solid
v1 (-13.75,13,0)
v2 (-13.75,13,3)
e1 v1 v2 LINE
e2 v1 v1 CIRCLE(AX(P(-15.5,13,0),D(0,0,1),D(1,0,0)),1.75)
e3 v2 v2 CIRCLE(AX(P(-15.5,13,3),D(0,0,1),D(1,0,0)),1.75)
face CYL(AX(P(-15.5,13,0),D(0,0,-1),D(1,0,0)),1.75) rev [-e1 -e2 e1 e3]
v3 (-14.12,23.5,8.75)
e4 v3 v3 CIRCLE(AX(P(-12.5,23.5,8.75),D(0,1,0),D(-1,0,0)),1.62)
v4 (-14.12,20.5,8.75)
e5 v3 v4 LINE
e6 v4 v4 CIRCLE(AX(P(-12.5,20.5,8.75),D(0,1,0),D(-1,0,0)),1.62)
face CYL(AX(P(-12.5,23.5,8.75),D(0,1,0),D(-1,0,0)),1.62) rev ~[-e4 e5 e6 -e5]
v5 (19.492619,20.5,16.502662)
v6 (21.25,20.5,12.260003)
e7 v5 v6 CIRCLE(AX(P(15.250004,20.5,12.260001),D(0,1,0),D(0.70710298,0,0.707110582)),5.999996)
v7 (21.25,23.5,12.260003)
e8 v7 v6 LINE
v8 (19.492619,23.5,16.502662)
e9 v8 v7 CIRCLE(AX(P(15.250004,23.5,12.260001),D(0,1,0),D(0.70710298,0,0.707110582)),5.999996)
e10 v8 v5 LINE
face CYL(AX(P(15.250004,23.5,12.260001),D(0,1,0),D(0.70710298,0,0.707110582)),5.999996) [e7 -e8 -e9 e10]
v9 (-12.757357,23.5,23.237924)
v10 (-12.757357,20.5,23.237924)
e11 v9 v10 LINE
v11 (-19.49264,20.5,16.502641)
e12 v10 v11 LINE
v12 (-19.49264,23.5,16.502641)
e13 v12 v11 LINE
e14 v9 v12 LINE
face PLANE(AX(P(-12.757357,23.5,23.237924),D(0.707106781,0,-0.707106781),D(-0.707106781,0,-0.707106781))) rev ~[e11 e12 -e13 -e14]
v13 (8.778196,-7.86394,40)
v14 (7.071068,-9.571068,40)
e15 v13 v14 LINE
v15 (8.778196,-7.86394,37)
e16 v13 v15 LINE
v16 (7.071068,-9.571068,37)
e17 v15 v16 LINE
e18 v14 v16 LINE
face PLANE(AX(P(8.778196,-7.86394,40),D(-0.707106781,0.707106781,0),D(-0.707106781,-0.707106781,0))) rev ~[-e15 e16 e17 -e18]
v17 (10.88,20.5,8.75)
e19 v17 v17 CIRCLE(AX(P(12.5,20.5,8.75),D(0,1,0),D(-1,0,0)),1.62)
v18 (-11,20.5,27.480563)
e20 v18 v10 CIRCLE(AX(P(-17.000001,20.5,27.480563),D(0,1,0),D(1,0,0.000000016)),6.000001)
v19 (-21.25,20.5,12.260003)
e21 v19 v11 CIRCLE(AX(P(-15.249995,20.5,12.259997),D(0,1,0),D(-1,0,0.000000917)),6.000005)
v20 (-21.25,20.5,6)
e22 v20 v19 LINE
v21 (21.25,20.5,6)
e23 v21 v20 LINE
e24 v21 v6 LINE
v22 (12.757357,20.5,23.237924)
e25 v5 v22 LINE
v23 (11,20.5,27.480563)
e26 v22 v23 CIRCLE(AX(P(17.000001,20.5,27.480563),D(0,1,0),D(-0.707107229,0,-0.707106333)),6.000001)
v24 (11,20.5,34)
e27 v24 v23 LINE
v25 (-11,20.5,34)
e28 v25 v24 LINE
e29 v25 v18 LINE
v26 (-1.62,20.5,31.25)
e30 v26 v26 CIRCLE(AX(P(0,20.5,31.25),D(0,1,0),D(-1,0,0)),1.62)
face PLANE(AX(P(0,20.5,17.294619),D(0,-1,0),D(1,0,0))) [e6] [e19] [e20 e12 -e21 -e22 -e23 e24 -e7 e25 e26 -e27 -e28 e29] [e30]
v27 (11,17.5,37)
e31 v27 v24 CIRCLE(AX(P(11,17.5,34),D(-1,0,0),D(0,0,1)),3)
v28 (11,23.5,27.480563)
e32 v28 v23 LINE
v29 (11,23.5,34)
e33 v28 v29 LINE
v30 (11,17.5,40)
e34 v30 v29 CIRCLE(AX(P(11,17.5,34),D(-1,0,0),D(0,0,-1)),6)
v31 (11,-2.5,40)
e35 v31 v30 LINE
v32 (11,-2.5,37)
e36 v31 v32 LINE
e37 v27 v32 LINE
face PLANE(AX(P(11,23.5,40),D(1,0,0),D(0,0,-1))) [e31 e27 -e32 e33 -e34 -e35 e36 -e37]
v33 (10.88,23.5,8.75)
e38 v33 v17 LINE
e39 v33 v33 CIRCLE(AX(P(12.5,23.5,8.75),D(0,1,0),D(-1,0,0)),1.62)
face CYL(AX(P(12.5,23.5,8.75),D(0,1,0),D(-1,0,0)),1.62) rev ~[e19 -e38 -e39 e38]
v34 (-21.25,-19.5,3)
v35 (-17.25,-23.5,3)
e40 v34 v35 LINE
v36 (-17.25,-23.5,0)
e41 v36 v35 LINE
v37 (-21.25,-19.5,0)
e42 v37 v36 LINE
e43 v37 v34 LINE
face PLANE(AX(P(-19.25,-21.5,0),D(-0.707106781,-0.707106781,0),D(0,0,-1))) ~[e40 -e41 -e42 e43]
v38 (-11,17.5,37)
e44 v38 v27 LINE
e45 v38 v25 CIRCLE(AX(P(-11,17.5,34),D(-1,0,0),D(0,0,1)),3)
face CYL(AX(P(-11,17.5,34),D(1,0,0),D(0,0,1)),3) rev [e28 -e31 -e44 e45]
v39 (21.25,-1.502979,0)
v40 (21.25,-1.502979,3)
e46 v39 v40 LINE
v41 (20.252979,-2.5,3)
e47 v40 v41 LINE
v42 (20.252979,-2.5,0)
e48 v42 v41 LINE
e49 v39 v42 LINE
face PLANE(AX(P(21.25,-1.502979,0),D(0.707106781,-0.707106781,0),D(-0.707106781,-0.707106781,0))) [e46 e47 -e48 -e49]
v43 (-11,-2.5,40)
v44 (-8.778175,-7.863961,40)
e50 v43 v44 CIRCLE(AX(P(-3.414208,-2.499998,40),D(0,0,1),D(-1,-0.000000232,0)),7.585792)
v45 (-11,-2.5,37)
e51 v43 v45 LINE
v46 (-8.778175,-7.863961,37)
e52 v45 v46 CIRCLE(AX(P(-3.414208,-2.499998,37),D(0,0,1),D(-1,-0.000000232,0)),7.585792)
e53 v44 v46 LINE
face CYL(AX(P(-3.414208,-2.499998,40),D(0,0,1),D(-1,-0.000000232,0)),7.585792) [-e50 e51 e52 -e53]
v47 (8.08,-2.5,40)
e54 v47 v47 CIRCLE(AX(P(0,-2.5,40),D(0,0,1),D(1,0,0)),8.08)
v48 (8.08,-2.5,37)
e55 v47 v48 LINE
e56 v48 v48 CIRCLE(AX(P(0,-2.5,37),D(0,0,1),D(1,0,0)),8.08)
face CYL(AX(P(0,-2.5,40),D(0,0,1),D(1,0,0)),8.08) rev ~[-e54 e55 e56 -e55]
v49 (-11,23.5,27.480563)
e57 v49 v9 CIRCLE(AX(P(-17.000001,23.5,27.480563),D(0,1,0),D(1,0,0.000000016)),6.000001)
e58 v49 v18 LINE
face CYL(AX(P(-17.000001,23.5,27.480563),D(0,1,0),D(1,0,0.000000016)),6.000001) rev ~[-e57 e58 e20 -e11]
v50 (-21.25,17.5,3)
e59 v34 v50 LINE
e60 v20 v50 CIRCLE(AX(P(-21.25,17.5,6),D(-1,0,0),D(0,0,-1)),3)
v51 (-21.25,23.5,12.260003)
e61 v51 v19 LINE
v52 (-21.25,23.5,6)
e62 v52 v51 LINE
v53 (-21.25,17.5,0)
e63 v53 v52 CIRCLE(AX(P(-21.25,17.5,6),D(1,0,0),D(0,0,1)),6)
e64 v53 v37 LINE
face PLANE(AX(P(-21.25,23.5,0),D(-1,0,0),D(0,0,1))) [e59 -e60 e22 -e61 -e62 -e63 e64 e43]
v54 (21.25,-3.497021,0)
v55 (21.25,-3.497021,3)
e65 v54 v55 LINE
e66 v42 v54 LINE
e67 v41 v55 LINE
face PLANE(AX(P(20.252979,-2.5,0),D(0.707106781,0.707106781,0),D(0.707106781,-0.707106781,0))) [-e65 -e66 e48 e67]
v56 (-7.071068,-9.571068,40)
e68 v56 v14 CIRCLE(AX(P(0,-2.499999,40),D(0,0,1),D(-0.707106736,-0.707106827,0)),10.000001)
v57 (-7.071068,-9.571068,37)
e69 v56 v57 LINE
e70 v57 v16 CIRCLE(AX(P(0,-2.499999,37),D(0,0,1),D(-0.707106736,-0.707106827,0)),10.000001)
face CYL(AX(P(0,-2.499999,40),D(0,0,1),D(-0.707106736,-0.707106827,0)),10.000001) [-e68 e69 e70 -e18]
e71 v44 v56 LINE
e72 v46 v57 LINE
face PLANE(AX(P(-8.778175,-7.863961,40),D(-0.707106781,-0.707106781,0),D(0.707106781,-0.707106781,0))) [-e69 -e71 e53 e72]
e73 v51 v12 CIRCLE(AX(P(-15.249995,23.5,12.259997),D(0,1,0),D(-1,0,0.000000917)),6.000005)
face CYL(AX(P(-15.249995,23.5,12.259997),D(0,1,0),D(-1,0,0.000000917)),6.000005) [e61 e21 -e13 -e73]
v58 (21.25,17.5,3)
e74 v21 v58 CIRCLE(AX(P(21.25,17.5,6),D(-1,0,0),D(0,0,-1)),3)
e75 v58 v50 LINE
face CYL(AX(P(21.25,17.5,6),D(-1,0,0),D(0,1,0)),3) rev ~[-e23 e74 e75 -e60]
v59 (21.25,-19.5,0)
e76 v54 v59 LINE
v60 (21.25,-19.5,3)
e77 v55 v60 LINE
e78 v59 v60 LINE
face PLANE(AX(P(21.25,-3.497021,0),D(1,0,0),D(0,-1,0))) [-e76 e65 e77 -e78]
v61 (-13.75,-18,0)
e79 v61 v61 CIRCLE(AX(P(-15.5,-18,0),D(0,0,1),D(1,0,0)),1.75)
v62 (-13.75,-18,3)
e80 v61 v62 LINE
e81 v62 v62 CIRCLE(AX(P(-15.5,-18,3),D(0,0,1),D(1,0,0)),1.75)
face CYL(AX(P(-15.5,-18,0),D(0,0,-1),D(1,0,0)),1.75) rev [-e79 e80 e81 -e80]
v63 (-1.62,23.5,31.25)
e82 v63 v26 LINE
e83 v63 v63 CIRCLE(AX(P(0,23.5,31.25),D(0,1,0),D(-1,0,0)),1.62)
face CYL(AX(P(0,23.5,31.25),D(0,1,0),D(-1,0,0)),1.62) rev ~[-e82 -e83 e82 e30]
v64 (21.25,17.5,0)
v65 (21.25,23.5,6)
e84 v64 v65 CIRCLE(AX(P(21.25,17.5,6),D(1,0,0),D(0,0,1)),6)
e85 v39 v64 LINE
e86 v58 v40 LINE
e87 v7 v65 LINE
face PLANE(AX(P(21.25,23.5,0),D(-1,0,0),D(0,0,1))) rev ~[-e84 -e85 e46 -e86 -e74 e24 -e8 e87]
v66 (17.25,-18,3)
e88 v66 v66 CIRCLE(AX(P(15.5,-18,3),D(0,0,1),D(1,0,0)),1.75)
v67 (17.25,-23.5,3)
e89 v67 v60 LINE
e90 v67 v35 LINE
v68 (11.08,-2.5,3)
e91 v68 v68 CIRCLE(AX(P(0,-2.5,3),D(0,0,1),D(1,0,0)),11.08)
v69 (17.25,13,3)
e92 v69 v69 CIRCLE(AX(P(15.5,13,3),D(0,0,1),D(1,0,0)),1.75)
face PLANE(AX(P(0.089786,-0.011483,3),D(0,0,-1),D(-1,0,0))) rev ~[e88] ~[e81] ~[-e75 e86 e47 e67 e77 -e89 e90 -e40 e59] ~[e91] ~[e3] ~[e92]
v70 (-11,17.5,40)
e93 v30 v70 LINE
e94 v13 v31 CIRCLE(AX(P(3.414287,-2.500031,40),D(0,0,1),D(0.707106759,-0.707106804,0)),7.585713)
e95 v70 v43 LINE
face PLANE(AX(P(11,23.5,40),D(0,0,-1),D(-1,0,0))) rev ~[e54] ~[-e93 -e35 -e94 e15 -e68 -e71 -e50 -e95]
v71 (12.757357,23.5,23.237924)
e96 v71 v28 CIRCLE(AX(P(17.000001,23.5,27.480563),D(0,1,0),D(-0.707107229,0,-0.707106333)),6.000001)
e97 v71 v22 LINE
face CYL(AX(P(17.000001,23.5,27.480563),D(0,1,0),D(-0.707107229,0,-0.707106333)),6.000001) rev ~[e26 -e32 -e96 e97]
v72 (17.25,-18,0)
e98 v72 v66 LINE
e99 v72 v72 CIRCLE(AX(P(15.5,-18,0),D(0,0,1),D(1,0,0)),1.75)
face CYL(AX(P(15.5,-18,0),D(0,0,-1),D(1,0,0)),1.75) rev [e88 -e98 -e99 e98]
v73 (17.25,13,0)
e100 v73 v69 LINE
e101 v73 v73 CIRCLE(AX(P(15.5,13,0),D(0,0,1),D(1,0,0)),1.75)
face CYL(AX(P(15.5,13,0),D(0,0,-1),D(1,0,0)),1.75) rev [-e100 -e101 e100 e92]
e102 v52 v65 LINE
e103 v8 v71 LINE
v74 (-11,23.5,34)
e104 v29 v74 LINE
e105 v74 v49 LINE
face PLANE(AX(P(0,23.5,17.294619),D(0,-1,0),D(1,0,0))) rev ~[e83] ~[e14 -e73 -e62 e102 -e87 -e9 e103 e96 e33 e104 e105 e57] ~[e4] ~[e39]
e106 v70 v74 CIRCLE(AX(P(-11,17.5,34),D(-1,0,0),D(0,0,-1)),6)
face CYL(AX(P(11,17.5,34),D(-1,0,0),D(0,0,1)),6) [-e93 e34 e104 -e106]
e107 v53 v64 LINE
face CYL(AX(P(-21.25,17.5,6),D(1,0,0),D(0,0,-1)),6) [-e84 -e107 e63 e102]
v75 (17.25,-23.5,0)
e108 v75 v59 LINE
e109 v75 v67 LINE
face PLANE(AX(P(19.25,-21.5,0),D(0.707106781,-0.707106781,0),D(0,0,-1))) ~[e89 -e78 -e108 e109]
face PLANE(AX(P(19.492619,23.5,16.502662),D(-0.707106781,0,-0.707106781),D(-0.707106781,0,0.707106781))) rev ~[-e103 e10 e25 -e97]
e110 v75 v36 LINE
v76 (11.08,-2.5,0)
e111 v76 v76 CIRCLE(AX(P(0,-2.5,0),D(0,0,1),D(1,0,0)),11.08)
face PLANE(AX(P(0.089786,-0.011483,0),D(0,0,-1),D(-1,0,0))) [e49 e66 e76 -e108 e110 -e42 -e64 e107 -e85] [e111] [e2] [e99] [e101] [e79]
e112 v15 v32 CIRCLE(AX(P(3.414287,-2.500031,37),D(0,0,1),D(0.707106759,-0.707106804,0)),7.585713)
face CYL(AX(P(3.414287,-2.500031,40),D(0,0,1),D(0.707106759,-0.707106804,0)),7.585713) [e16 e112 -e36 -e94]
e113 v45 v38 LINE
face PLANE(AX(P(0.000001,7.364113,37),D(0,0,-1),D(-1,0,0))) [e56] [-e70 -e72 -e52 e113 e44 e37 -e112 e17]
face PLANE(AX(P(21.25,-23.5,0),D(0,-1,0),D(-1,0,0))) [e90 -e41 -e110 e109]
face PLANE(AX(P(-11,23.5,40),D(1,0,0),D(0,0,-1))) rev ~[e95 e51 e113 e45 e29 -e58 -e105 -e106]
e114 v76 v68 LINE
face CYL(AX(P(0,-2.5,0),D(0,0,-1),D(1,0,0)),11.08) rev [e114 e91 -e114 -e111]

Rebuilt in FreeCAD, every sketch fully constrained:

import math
import FreeCAD as App
import Part
import Sketcher
from FreeCAD import Vector


def edges_at(feature, points):
    """Names of the edges that pass closest to the given points."""
    edges = feature.Shape.Edges
    near = lambda p: min(range(len(edges)), key=lambda i: edges[i].distToShape(Part.Vertex(*p))[0])
    return sorted({f"Edge{near(p) + 1}" for p in points})

doc = App.newDocument("Part")
params = doc.addObject("Spreadsheet::Sheet", "Params")
for row, (alias, value) in enumerate([
    ("sketch1_diameter", "3.5 mm"),
    ("sketch1_diameter2", "22.16 mm"),
    ("sketch1_height", "47 mm"),
    ("sketch1_width", "42.5 mm"),
    ("sketch1_length", "1.410001 mm"),
    ("pad1_length", "3 mm"),
    ("chamfer_size", "4 mm"),
    ("sketch2_radius", "6.000001 mm"),
    ("sketch2_diameter", "3.24 mm"),
    ("sketch2_width", "22 mm"),
    ("sketch2_width2", "42.5 mm"),
    ("pad2_length", "3 mm"),
    ("sketch3_radius", "10.000001 mm"),
    ("sketch3_diameter", "16.16 mm"),
    ("sketch3_width", "22 mm"),
    ("sketch3_height", "26 mm"),
    ("pad3_length", "3 mm"),
    ("fillet_radius", "6 mm"),
    ("fillet2_radius", "3 mm"),
], start=1):
    params.set(f"A{row}", alias)
    params.set(f"B{row}", "=" + value)
    params.setAlias(f"B{row}", alias)

body = doc.addObject("PartDesign::Body", "Body")

# Sketch on XY plane
sketch1 = body.newObject("Sketcher::SketchObject", "Sketch")
sketch1.AttachmentSupport = (doc.getObject("XY_Plane"), [""])
sketch1.MapMode = "FlatFace"
sketch1.addGeometry([
    Part.LineSegment(Vector(21.2, 23.5, 0), Vector(-21.2, 23.5, 0)),  # 0
    Part.LineSegment(Vector(-21.2, 23.5, 0), Vector(-21.2, -23.5, 0)),  # 1
    Part.LineSegment(Vector(-21.2, -23.5, 0), Vector(21.2, -23.5, 0)),  # 2
    Part.LineSegment(Vector(21.2, -23.5, 0), Vector(21.2, -3.5, 0)),  # 3
    Part.LineSegment(Vector(21.2, -3.5, 0), Vector(20.3, -2.5, 0)),  # 4
    Part.LineSegment(Vector(20.3, -2.5, 0), Vector(21.2, -1.5, 0)),  # 5
    Part.LineSegment(Vector(21.2, -1.5, 0), Vector(21.2, 23.5, 0)),  # 6
    Part.Circle(Vector(15.5, -18, 0), Vector(0, 0, 1), 1.8),  # 7
    Part.Circle(Vector(-15.5, -18, 0), Vector(0, 0, 1), 1.8),  # 8
    Part.Circle(Vector(15.5, 13, 0), Vector(0, 0, 1), 1.8),  # 9
    Part.Circle(Vector(0, -2.5, 0), Vector(0, 0, 1), 11.1),  # 10
    Part.Circle(Vector(-15.5, 13, 0), Vector(0, 0, 1), 1.8),  # 11
], False)
sketch1.addConstraint([
    Sketcher.Constraint("Coincident", 0, 2, 1, 1),
    Sketcher.Constraint("Coincident", 1, 2, 2, 1),
    Sketcher.Constraint("Coincident", 2, 2, 3, 1),
    Sketcher.Constraint("Coincident", 3, 2, 4, 1),
    Sketcher.Constraint("Coincident", 4, 2, 5, 1),
    Sketcher.Constraint("Coincident", 5, 2, 6, 1),
    Sketcher.Constraint("Coincident", 6, 2, 0, 1),
    Sketcher.Constraint("Horizontal", 0),
    Sketcher.Constraint("Vertical", 1),
    Sketcher.Constraint("Horizontal", 2),
    Sketcher.Constraint("Vertical", 3),
    Sketcher.Constraint("Vertical", 6),
    Sketcher.Constraint("Equal", 7, 8),
    Sketcher.Constraint("Equal", 8, 9),
    Sketcher.Constraint("Equal", 9, 11),
    Sketcher.Constraint("Symmetric", 0, 2, 2, 2, -1, 1),
    Sketcher.Constraint("Symmetric", 7, 3, 8, 3, -2),
    Sketcher.Constraint("Symmetric", 9, 3, 11, 3, -2),
    Sketcher.Constraint("PointOnObject", 10, 3, -2),
    Sketcher.Constraint("Perpendicular", 4, 5),
    Sketcher.Constraint("Horizontal", 10, 3, 4, 2),
    Sketcher.Constraint("Vertical", 7, 3, 9, 3),
    Sketcher.Constraint("Vertical", 3, 2, 5, 2),
    Sketcher.Constraint("Equal", 4, 5),
    Sketcher.Constraint("Diameter", 7, 3.5),
    Sketcher.Constraint("Diameter", 10, 22.16),
    Sketcher.Constraint("DistanceY", 1, 2, 1, 1, 47.0),
    Sketcher.Constraint("DistanceX", 0, 2, 0, 1, 42.5),
    Sketcher.Constraint("DistanceY", 7, 3, -1, 1, 18.0),
    Sketcher.Constraint("DistanceY", -1, 1, 9, 3, 13.0),
    Sketcher.Constraint("DistanceX", 8, 3, 7, 3, 31.0),
    Sketcher.Constraint("DistanceY", 10, 3, 0, 2, 26.0),
    Sketcher.Constraint("Distance", 4, 1.410001),
])
sketch1.setExpression("Constraints[24]", "Params.sketch1_diameter")
sketch1.setExpression("Constraints[25]", "Params.sketch1_diameter2")
sketch1.setExpression("Constraints[26]", "Params.sketch1_height")
sketch1.setExpression("Constraints[27]", "Params.sketch1_width")
sketch1.setExpression("Constraints[32]", "Params.sketch1_length")
pad1 = body.newObject("PartDesign::Pad", "Pad")
pad1.Profile = sketch1
pad1.setExpression("Length", "Params.pad1_length")
doc.recompute()

chamfer = body.newObject("PartDesign::Chamfer", "Chamfer")
chamfer.Base = (pad1, edges_at(pad1, [(21.25, -23.5, 1.5), (-21.25, -23.5, 1.5)]))
chamfer.setExpression("Size", "Params.chamfer_size")

# Sketch on XZ plane
sketch2 = body.newObject("Sketcher::SketchObject", "Sketch001")
sketch2.AttachmentSupport = (doc.getObject("XZ_Plane"), [""])
sketch2.MapMode = "FlatFace"
sketch2.AttachmentOffset = App.Placement(Vector(0, 0, -23.5), App.Rotation())
sketch2.addGeometry([
    Part.LineSegment(Vector(-11, 40, 0), Vector(11, 40, 0)),  # 0
    Part.LineSegment(Vector(11, 40, 0), Vector(11, 27.5, 0)),  # 1
    Part.ArcOfCircle(Part.Circle(Vector(17, 27.5, 0), Vector(0, 0, 1), 6), math.radians(180), math.radians(225)),  # 2
    Part.LineSegment(Vector(12.8, 23.2, 0), Vector(19.5, 16.5, 0)),  # 3
    Part.ArcOfCircle(Part.Circle(Vector(15.3, 12.3, 0), Vector(0, 0, 1), 6), math.radians(0), math.radians(45)),  # 4
    Part.LineSegment(Vector(21.2, 12.3, 0), Vector(21.2, 0, 0)),  # 5
    Part.LineSegment(Vector(21.2, 0, 0), Vector(-21.2, 0, 0)),  # 6
    Part.LineSegment(Vector(-21.2, 0, 0), Vector(-21.2, 12.3, 0)),  # 7
    Part.ArcOfCircle(Part.Circle(Vector(-15.2, 12.3, 0), Vector(0, 0, 1), 6), math.radians(135), math.radians(180)),  # 8
    Part.LineSegment(Vector(-19.5, 16.5, 0), Vector(-12.8, 23.2, 0)),  # 9
    Part.ArcOfCircle(Part.Circle(Vector(-17, 27.5, 0), Vector(0, 0, 1), 6), math.radians(-45), math.radians(0)),  # 10
    Part.LineSegment(Vector(-11, 27.5, 0), Vector(-11, 40, 0)),  # 11
    Part.Circle(Vector(-12.5, 8.8, 0), Vector(0, 0, 1), 1.6),  # 12
    Part.Circle(Vector(12.5, 8.8, 0), Vector(0, 0, 1), 1.6),  # 13
    Part.Circle(Vector(0, 31.2, 0), Vector(0, 0, 1), 1.6),  # 14
], False)
sketch2.addConstraint([
    Sketcher.Constraint("Coincident", 0, 2, 1, 1),
    Sketcher.Constraint("Tangent", 1, 2, 2, 1),
    Sketcher.Constraint("Tangent", 2, 2, 3, 1),
    Sketcher.Constraint("Coincident", 3, 2, 4, 2),
    Sketcher.Constraint("Tangent", 4, 1, 5, 1),
    Sketcher.Constraint("Coincident", 5, 2, 6, 1),
    Sketcher.Constraint("Coincident", 6, 2, 7, 1),
    Sketcher.Constraint("Tangent", 7, 2, 8, 2),
    Sketcher.Constraint("Tangent", 8, 1, 9, 1),
    Sketcher.Constraint("Tangent", 9, 2, 10, 1),
    Sketcher.Constraint("Tangent", 10, 2, 11, 1),
    Sketcher.Constraint("Coincident", 11, 2, 0, 1),
    Sketcher.Constraint("Horizontal", 0),
    Sketcher.Constraint("Vertical", 1),
    Sketcher.Constraint("Vertical", 5),
    Sketcher.Constraint("Horizontal", 6),
    Sketcher.Constraint("Vertical", 7),
    Sketcher.Constraint("Vertical", 11),
    Sketcher.Constraint("Equal", 2, 10),
    Sketcher.Constraint("Equal", 12, 13),
    Sketcher.Constraint("Equal", 13, 14),
    Sketcher.Constraint("Symmetric", 5, 2, 6, 2, -1, 1),
    Sketcher.Constraint("Symmetric", 4, 3, 8, 3, -2),
    Sketcher.Constraint("Symmetric", 2, 3, 10, 3, -2),
    Sketcher.Constraint("Symmetric", 12, 3, 13, 3, -2),
    Sketcher.Constraint("PointOnObject", 14, 3, -2),
    Sketcher.Constraint("Perpendicular", 3, 9),
    Sketcher.Constraint("Radius", 2, 6.000001),
    Sketcher.Constraint("Diameter", 12, 3.24),
    Sketcher.Constraint("DistanceX", 0, 1, 0, 2, 22.0),
    Sketcher.Constraint("DistanceX", 6, 2, 6, 1, 42.5),
    Sketcher.Constraint("DistanceY", -1, 1, 0, 2, 40.0),
    Sketcher.Constraint("DistanceX", 12, 3, 13, 3, 25.0),
    Sketcher.Constraint("DistanceX", 8, 3, 4, 3, 30.499999),
    Sketcher.Constraint("DistanceY", 12, 3, 14, 3, 22.5),
    Sketcher.Constraint("DistanceY", -1, 1, 4, 3, 12.260001),
    Sketcher.Constraint("DistanceY", -1, 1, 12, 3, 8.75),
    Sketcher.Constraint("Distance", 3, 9.525099),
])
sketch2.setExpression("Constraints[27]", "Params.sketch2_radius")
sketch2.setExpression("Constraints[28]", "Params.sketch2_diameter")
sketch2.setExpression("Constraints[29]", "Params.sketch2_width")
sketch2.setExpression("Constraints[30]", "Params.sketch2_width2")
pad2 = body.newObject("PartDesign::Pad", "Pad001")
pad2.Profile = sketch2
pad2.setExpression("Length", "Params.pad2_length")

# Sketch on XY plane
sketch3 = body.newObject("Sketcher::SketchObject", "Sketch002")
sketch3.AttachmentSupport = (doc.getObject("XY_Plane"), [""])
sketch3.MapMode = "FlatFace"
sketch3.AttachmentOffset = App.Placement(Vector(0, 0, 40), App.Rotation())
sketch3.addGeometry([
    Part.LineSegment(Vector(11, 23.5, 0), Vector(-11, 23.5, 0)),  # 0
    Part.LineSegment(Vector(-11, 23.5, 0), Vector(-11, -2.5, 0)),  # 1
    Part.ArcOfCircle(Part.Circle(Vector(-3.4, -2.5, 0), Vector(0, 0, 1), 7.6), math.radians(-180), math.radians(-135)),  # 2
    Part.LineSegment(Vector(-8.8, -7.9, 0), Vector(-7.1, -9.6, 0)),  # 3
    Part.ArcOfCircle(Part.Circle(Vector(0, -2.5, 0), Vector(0, 0, 1), 10), math.radians(-135), math.radians(-45)),  # 4
    Part.LineSegment(Vector(7.1, -9.6, 0), Vector(8.8, -7.9, 0)),  # 5
    Part.ArcOfCircle(Part.Circle(Vector(3.4, -2.5, 0), Vector(0, 0, 1), 7.6), math.radians(-45), math.radians(0)),  # 6
    Part.LineSegment(Vector(11, -2.5, 0), Vector(11, 23.5, 0)),  # 7
    Part.Circle(Vector(0, -2.5, 0), Vector(0, 0, 1), 8.1),  # 8
], False)
sketch3.addConstraint([
    Sketcher.Constraint("Coincident", 0, 2, 1, 1),
    Sketcher.Constraint("Tangent", 1, 2, 2, 1),
    Sketcher.Constraint("Tangent", 2, 2, 3, 1),
    Sketcher.Constraint("Tangent", 3, 2, 4, 1),
    Sketcher.Constraint("Tangent", 4, 2, 5, 1),
    Sketcher.Constraint("Tangent", 5, 2, 6, 1),
    Sketcher.Constraint("Coincident", 6, 2, 7, 1),
    Sketcher.Constraint("Coincident", 7, 2, 0, 1),
    Sketcher.Constraint("Horizontal", 0),
    Sketcher.Constraint("Vertical", 1),
    Sketcher.Constraint("Vertical", 7),
    Sketcher.Constraint("Coincident", 8, 3, 4, 3),
    Sketcher.Constraint("Symmetric", 3, 2, 4, 2, -2),
    Sketcher.Constraint("Symmetric", 1, 2, 6, 2, -2),
    Sketcher.Constraint("Perpendicular", 3, 5),
    Sketcher.Constraint("Horizontal", 2, 3, 4, 3),
    Sketcher.Constraint("Radius", 4, 10.000001),
    Sketcher.Constraint("Diameter", 8, 16.16),
    Sketcher.Constraint("DistanceX", 0, 2, 0, 1, 22.0),
    Sketcher.Constraint("DistanceY", 1, 2, 1, 1, 26.0),
    Sketcher.Constraint("DistanceY", 2, 3, -1, 1, 2.499998),
    Sketcher.Constraint("Radius", 6, 7.585713),
])
sketch3.setExpression("Constraints[16]", "Params.sketch3_radius")
sketch3.setExpression("Constraints[17]", "Params.sketch3_diameter")
sketch3.setExpression("Constraints[18]", "Params.sketch3_width")
sketch3.setExpression("Constraints[19]", "Params.sketch3_height")
pad3 = body.newObject("PartDesign::Pad", "Pad002")
pad3.Profile = sketch3
pad3.setExpression("Length", "Params.pad3_length")
pad3.Reversed = True
doc.recompute()

fillet = body.newObject("PartDesign::Fillet", "Fillet")
fillet.Base = (pad3, edges_at(pad3, [(0, 23.5, 0), (0, 23.5, 40)]))
fillet.setExpression("Radius", "Params.fillet_radius")
doc.recompute()

fillet2 = body.newObject("PartDesign::Fillet", "Fillet001")
fillet2.Base = (fillet, edges_at(fillet, [(0, 20.5, 3), (0, 20.5, 37)]))
fillet2.setExpression("Radius", "Params.fillet2_radius")

doc.recompute()
